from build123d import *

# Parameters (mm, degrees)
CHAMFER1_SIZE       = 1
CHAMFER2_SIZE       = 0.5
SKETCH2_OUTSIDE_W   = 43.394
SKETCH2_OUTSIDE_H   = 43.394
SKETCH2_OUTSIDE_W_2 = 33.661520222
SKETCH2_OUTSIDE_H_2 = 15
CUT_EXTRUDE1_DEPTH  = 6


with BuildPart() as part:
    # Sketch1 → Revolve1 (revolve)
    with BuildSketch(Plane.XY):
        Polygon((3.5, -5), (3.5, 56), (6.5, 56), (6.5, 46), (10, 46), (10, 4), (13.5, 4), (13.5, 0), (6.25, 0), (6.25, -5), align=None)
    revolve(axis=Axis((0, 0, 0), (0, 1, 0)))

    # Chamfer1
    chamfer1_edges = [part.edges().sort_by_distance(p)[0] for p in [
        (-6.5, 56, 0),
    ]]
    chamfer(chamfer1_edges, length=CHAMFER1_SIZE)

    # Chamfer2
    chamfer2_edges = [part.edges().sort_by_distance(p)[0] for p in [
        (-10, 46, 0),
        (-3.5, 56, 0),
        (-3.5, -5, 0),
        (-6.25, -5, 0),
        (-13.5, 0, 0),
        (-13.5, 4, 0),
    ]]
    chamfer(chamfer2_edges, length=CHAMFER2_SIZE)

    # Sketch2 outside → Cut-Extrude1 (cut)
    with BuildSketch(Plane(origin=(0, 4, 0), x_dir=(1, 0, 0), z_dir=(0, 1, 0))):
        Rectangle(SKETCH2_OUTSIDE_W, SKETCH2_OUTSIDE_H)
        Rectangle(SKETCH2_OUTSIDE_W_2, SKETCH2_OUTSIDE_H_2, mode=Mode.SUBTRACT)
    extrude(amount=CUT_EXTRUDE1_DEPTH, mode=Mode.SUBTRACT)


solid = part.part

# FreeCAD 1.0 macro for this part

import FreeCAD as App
import Part
import Sketcher


def edges_at(feature, points):
    """Names of the edges that pass closest to the given points."""
    edges = feature.Shape.Edges
    near = lambda p: min(range(len(edges)), key=lambda i: edges[i].distToShape(Part.Vertex(*p))[0])
    return sorted({f"Edge{near(p) + 1}" for p in points})


def add_polygon(sketch, points):
    """Adds a closed chain of lines whose ends are joined by coincident constraints."""
    first, n = sketch.GeometryCount, len(points)
    for a, b in zip(points, points[1:] + points[:1]):
        sketch.addGeometry(Part.LineSegment(App.Vector(*a, 0), App.Vector(*b, 0)), False)
    for i in range(n):
        sketch.addConstraint(Sketcher.Constraint("Coincident", first + i, 2, first + (i + 1) % n, 1))

doc = App.newDocument("Part")
params = doc.addObject("Spreadsheet::Sheet", "Params")
for row, (alias, value) in enumerate([
    ("sketch1_width", "3 mm"),
    ("sketch1_height", "61 mm"),
    ("sketch1_height2", "5 mm"),
    ("sketch1_height3", "4 mm"),
    ("sketch1_height4", "42 mm"),
    ("revolution_angle", "360 deg"),
    ("chamfer_size", "1 mm"),
    ("chamfer2_size", "0.5 mm"),
    ("sketch2_height", "15 mm"),
    ("pocket1_length", "6 mm"),
], start=1):
    params.set(f"A{row}", alias)
    params.set(f"B{row}", "=" + value)
    params.setAlias(f"B{row}", alias)

body = doc.addObject("PartDesign::Body", "Body")

# Sketch on XY plane
sketch1 = body.newObject("Sketcher::SketchObject", "Sketch")
sketch1.AttachmentSupport = (doc.getObject("XY_Plane"), [""])
sketch1.MapMode = "FlatFace"
add_polygon(sketch1, [(3.5, 56), (3.5, -5), (6.25, -5), (6.25, 0), (13.5, 0), (13.5, 4), (10, 4), (10, 46), (6.5, 46), (6.5, 56)])  # lines 0-9
sketch1.addConstraint([
    Sketcher.Constraint("Vertical", 0),
    Sketcher.Constraint("Horizontal", 1),
    Sketcher.Constraint("Vertical", 2),
    Sketcher.Constraint("Horizontal", 3),
    Sketcher.Constraint("Vertical", 4),
    Sketcher.Constraint("Horizontal", 5),
    Sketcher.Constraint("Vertical", 6),
    Sketcher.Constraint("Horizontal", 7),
    Sketcher.Constraint("Vertical", 8),
    Sketcher.Constraint("Horizontal", 9),
    Sketcher.Constraint("PointOnObject", 2, 2, -1),
    Sketcher.Constraint("Equal", 5, 7),
    Sketcher.Constraint("DistanceX", 9, 2, 9, 1, 3.0),
    Sketcher.Constraint("DistanceY", 0, 2, 0, 1, 61.0),
    Sketcher.Constraint("DistanceY", 2, 1, 2, 2, 5.0),
    Sketcher.Constraint("DistanceY", 4, 1, 4, 2, 4.0),
    Sketcher.Constraint("DistanceY", 6, 1, 6, 2, 42.0),
    Sketcher.Constraint("DistanceX", 5, 2, 5, 1, 3.5),
    Sketcher.Constraint("DistanceX", -1, 1, 5, 2, 10.0),
    Sketcher.Constraint("DistanceX", 1, 1, 1, 2, 2.75),
])
sketch1.setExpression("Constraints[22]", "Params.sketch1_width")
sketch1.setExpression("Constraints[23]", "Params.sketch1_height")
sketch1.setExpression("Constraints[24]", "Params.sketch1_height2")
sketch1.setExpression("Constraints[25]", "Params.sketch1_height3")
sketch1.setExpression("Constraints[26]", "Params.sketch1_height4")
revolution = body.newObject("PartDesign::Revolution", "Revolution")
revolution.Profile = sketch1
revolution.ReferenceAxis = (sketch1, ["V_Axis"])
revolution.setExpression("Angle", "Params.revolution_angle")
doc.recompute()

chamfer = body.newObject("PartDesign::Chamfer", "Chamfer")
chamfer.Base = (revolution, edges_at(revolution, [(-6.5, 56, 0)]))
chamfer.setExpression("Size", "Params.chamfer_size")
doc.recompute()

chamfer2 = body.newObject("PartDesign::Chamfer", "Chamfer001")
chamfer2.Base = (chamfer, edges_at(chamfer, [
    (-10, 46, 0),
    (-3.5, 56, 0),
    (-3.5, -5, 0),
    (-6.25, -5, 0),
    (-13.5, 0, 0),
    (-13.5, 4, 0),
]))
chamfer2.setExpression("Size", "Params.chamfer2_size")

# Sketch on XZ plane
sketch2 = body.newObject("Sketcher::SketchObject", "Sketch001")
sketch2.AttachmentSupport = (doc.getObject("XZ_Plane"), [""])
sketch2.MapMode = "FlatFace"
sketch2.AttachmentOffset = App.Placement(App.Vector(0, 0, -4), App.Rotation())
add_polygon(sketch2, [(-21.697, -21.697), (-21.697, 21.697), (21.697, 21.697), (21.697, -21.697)])  # lines 0-3
add_polygon(sketch2, [(16.83076, 7.5), (-16.83076, 7.5), (-16.83076, -7.5), (16.83076, -7.5)])  # lines 4-7
sketch2.addConstraint([
    Sketcher.Constraint("Vertical", 0),
    Sketcher.Constraint("Horizontal", 1),
    Sketcher.Constraint("Vertical", 2),
    Sketcher.Constraint("Horizontal", 3),
    Sketcher.Constraint("Horizontal", 4),
    Sketcher.Constraint("Vertical", 5),
    Sketcher.Constraint("Horizontal", 6),
    Sketcher.Constraint("Vertical", 7),
    Sketcher.Constraint("Symmetric", 0, 2, 2, 2, -1, 1),
    Sketcher.Constraint("Symmetric", 4, 2, 6, 2, -1, 1),
    Sketcher.Constraint("Equal", 3, 0),
    Sketcher.Constraint("DistanceY", 5, 2, 5, 1, 15.0),
    Sketcher.Constraint("DistanceX", 1, 1, 1, 2, 43.394),
    Sketcher.Constraint("DistanceX", 4, 2, 4, 1, 33.66152),
])
sketch2.setExpression("Constraints[19]", "Params.sketch2_height")
pocket1 = body.newObject("PartDesign::Pocket", "Pocket")
pocket1.Profile = sketch2
pocket1.setExpression("Length", "Params.pocket1_length")

doc.recompute()
